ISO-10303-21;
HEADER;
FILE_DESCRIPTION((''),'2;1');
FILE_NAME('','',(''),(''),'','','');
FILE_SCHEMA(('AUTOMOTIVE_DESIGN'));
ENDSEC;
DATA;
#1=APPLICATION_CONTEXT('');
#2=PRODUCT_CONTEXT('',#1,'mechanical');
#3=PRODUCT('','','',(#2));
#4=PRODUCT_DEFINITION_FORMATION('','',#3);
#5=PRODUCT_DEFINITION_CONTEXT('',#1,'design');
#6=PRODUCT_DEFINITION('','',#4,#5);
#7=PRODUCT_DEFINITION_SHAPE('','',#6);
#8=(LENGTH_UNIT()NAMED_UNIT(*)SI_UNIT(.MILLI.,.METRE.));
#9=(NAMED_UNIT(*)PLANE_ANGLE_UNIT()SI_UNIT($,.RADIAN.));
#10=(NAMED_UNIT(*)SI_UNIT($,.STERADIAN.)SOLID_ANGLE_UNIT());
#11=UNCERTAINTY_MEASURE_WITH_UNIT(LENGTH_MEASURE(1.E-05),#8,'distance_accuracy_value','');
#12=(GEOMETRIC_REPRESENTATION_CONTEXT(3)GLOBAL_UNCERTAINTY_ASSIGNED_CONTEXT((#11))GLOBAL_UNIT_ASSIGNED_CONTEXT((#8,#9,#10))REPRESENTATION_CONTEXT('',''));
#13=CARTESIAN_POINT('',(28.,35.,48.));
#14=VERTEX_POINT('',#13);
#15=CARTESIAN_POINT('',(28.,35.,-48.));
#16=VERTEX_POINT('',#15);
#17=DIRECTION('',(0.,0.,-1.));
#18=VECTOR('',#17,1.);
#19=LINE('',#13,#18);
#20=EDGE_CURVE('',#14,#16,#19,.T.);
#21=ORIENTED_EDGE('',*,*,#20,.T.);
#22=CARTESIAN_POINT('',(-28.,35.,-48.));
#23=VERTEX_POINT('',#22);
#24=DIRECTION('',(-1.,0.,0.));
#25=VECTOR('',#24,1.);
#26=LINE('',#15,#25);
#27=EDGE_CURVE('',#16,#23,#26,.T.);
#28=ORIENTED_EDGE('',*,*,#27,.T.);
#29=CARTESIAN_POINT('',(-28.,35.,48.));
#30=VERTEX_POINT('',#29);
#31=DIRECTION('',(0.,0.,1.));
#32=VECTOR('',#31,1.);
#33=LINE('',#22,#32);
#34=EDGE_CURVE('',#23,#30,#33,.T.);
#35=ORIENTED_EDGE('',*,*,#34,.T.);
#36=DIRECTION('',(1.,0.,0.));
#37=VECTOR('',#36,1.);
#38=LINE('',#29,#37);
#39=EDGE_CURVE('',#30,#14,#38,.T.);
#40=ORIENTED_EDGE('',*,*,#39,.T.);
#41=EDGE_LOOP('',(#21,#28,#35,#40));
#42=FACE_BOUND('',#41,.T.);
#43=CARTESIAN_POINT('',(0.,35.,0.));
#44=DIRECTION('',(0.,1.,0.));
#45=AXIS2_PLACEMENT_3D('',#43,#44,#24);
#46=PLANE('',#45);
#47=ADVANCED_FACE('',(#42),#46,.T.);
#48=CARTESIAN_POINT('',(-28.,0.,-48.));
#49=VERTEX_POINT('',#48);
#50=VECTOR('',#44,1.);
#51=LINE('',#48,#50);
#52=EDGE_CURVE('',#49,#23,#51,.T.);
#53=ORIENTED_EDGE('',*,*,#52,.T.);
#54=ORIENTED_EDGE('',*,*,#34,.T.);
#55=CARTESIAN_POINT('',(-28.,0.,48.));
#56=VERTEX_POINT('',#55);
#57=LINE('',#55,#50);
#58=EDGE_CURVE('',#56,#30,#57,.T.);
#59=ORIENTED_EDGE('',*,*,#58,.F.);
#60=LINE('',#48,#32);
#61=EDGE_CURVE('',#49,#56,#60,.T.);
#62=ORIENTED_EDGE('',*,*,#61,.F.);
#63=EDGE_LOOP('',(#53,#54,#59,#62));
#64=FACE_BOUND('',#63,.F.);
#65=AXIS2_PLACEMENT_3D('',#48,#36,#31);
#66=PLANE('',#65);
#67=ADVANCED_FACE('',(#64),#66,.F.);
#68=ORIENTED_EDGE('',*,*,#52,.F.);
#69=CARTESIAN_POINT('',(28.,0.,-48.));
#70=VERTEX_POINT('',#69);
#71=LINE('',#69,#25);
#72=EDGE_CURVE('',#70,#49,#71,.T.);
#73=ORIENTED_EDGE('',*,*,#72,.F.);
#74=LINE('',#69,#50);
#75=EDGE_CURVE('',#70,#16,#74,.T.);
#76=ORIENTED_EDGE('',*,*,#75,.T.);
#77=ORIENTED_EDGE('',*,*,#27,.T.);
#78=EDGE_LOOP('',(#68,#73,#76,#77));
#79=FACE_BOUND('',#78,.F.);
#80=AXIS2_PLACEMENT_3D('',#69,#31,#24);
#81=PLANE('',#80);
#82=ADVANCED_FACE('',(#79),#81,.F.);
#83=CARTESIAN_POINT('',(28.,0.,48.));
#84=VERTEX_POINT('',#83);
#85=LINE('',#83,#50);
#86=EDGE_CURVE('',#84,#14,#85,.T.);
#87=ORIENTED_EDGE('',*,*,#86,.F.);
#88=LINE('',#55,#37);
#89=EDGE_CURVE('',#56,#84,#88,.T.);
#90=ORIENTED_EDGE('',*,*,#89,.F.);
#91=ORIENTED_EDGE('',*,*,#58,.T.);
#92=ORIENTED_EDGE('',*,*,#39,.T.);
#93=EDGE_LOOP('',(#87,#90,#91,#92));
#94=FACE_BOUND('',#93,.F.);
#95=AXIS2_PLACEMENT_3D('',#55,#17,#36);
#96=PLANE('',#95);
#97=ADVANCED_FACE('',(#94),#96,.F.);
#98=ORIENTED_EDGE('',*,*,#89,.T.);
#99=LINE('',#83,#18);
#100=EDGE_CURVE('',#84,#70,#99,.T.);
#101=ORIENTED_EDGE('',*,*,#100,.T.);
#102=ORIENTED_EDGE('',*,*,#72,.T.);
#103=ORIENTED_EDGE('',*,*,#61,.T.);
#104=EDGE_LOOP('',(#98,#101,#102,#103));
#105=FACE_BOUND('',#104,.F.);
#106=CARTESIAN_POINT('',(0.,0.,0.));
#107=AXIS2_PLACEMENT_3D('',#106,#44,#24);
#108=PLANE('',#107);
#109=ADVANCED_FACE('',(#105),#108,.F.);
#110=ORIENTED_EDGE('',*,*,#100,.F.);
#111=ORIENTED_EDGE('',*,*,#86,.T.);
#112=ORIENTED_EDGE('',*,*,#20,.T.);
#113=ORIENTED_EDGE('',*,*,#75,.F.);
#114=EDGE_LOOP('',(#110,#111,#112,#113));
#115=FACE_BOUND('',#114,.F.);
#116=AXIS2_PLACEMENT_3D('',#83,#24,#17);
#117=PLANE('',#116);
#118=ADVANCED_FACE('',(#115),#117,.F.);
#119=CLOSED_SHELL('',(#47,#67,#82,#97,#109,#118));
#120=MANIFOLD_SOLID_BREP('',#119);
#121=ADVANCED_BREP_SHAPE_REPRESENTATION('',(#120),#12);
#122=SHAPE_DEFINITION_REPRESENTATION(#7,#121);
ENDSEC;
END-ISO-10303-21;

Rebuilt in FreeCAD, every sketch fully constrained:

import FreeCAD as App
import Part
import Sketcher

V = App.Vector

doc = App.newDocument("Part")
body = doc.addObject("PartDesign::Body", "Body")

# Sketch on XZ plane
sketch1 = body.newObject("Sketcher::SketchObject", "Sketch")
sketch1.AttachmentSupport = (doc.getObject("XZ_Plane"), [""])
sketch1.MapMode = "FlatFace"
sketch1.addGeometry(Part.LineSegment(V(-28, -48, 0), V(-28, 48, 0)), False)
sketch1.addGeometry(Part.LineSegment(V(-28, 48, 0), V(28, 48, 0)), False)
sketch1.addGeometry(Part.LineSegment(V(28, 48, 0), V(28, -48, 0)), False)
sketch1.addGeometry(Part.LineSegment(V(28, -48, 0), V(-28, -48, 0)), False)
sketch1.addConstraint(Sketcher.Constraint("Coincident", 0, 2, 1, 1))
sketch1.addConstraint(Sketcher.Constraint("Coincident", 1, 2, 2, 1))
sketch1.addConstraint(Sketcher.Constraint("Coincident", 2, 2, 3, 1))
sketch1.addConstraint(Sketcher.Constraint("Coincident", 3, 2, 0, 1))
sketch1.addConstraint(Sketcher.Constraint("Vertical", 0))
sketch1.addConstraint(Sketcher.Constraint("Horizontal", 1))
sketch1.addConstraint(Sketcher.Constraint("Vertical", 2))
sketch1.addConstraint(Sketcher.Constraint("Horizontal", 3))
sketch1.addConstraint(Sketcher.Constraint("Symmetric", 0, 2, 2, 2, -1, 1))
sketch1.addConstraint(Sketcher.Constraint("DistanceX", 1, 1, 1, 2, 56.0))
sketch1.addConstraint(Sketcher.Constraint("DistanceY", 0, 1, 0, 2, 96.0))
pad1 = body.newObject("PartDesign::Pad", "Pad")
pad1.Profile = sketch1
pad1.Length = 35
pad1.Reversed = True

doc.recompute()
